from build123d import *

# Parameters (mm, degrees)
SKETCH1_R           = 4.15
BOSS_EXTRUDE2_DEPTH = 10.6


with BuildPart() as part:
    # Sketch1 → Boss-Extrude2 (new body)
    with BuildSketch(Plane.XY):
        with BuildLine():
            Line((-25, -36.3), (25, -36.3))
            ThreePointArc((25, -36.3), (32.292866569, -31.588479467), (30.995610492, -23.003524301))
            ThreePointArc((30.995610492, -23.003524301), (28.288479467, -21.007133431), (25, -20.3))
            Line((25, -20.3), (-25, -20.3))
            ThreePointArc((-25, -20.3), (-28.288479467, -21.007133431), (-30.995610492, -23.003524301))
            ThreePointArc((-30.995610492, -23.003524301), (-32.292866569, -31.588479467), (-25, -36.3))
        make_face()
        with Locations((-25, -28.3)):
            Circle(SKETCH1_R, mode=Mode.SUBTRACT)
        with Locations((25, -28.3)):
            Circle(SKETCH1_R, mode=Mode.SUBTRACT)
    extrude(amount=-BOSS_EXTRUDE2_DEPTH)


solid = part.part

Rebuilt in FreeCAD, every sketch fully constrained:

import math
import FreeCAD as App
import Part
import Sketcher
from FreeCAD import Vector
Q = App.Units.Quantity

doc = App.newDocument("Part")
body = doc.addObject("PartDesign::Body", "Body")

sketch1 = body.newObject("Sketcher::SketchObject", "Sketch")
sketch1.AttachmentSupport = (doc.getObject("XY_Plane"), [""])
sketch1.MapMode = "FlatFace"
sketch1.addGeometry([
    Part.LineSegment(Vector(-25, -36.3, 0), Vector(25, -36.3, 0)),
    Part.ArcOfCircle(Part.Circle(Vector(25, -28.3, 0), Vector(0, 0, 1), 8), math.radians(-90), math.radians(41.457129)),
    Part.ArcOfCircle(Part.Circle(Vector(25, -28.3, 0), Vector(0, 0, 1), 8), math.radians(41.457129), math.radians(90)),
    Part.LineSegment(Vector(25, -20.3, 0), Vector(-25, -20.3, 0)),
    Part.ArcOfCircle(Part.Circle(Vector(-25, -28.3, 0), Vector(0, 0, 1), 8), math.radians(90), math.radians(138.542871)),
    Part.ArcOfCircle(Part.Circle(Vector(-25, -28.3, 0), Vector(0, 0, 1), 8), math.radians(138.542871), math.radians(270)),
    Part.Circle(Vector(-25, -28.3, 0), Vector(0, 0, 1), 4.15),
    Part.Circle(Vector(25, -28.3, 0), Vector(0, 0, 1), 4.15),
], False)
sketch1.addConstraint([
    Sketcher.Constraint("Tangent", 0, 2, 1, 1),
    Sketcher.Constraint("Tangent", 1, 2, 2, 1),
    Sketcher.Constraint("Tangent", 2, 2, 3, 1),
    Sketcher.Constraint("Tangent", 3, 2, 4, 1),
    Sketcher.Constraint("Tangent", 4, 2, 5, 1),
    Sketcher.Constraint("Tangent", 5, 2, 0, 1),
    Sketcher.Constraint("Horizontal", 0),
    Sketcher.Constraint("Horizontal", 3),
    Sketcher.Constraint("Coincident", 6, 3, 4, 3),
    Sketcher.Constraint("Coincident", 7, 3, 1, 3),
    Sketcher.Constraint("Equal", 1, 2),
    Sketcher.Constraint("Equal", 2, 4),
    Sketcher.Constraint("Equal", 6, 7),
    Sketcher.Constraint("Symmetric", 1, 2, 4, 2, -2),
    Sketcher.Constraint("Radius", 1, Q("8 mm")),
    Sketcher.Constraint("Diameter", 6, Q("8.3 mm")),
    Sketcher.Constraint("DistanceX", 0, 1, 0, 2, Q("50 mm")),
    Sketcher.Constraint("DistanceY", 1, 3, -1, 1, Q("28.3 mm")),
    Sketcher.Constraint("DistanceX", -1, 1, 1, 2, Q("30.99561 mm")),
])
pad1 = body.newObject("PartDesign::Pad", "Pad")
pad1.Profile = sketch1
pad1.Length = 10.6
pad1.Reversed = True

doc.recompute()
